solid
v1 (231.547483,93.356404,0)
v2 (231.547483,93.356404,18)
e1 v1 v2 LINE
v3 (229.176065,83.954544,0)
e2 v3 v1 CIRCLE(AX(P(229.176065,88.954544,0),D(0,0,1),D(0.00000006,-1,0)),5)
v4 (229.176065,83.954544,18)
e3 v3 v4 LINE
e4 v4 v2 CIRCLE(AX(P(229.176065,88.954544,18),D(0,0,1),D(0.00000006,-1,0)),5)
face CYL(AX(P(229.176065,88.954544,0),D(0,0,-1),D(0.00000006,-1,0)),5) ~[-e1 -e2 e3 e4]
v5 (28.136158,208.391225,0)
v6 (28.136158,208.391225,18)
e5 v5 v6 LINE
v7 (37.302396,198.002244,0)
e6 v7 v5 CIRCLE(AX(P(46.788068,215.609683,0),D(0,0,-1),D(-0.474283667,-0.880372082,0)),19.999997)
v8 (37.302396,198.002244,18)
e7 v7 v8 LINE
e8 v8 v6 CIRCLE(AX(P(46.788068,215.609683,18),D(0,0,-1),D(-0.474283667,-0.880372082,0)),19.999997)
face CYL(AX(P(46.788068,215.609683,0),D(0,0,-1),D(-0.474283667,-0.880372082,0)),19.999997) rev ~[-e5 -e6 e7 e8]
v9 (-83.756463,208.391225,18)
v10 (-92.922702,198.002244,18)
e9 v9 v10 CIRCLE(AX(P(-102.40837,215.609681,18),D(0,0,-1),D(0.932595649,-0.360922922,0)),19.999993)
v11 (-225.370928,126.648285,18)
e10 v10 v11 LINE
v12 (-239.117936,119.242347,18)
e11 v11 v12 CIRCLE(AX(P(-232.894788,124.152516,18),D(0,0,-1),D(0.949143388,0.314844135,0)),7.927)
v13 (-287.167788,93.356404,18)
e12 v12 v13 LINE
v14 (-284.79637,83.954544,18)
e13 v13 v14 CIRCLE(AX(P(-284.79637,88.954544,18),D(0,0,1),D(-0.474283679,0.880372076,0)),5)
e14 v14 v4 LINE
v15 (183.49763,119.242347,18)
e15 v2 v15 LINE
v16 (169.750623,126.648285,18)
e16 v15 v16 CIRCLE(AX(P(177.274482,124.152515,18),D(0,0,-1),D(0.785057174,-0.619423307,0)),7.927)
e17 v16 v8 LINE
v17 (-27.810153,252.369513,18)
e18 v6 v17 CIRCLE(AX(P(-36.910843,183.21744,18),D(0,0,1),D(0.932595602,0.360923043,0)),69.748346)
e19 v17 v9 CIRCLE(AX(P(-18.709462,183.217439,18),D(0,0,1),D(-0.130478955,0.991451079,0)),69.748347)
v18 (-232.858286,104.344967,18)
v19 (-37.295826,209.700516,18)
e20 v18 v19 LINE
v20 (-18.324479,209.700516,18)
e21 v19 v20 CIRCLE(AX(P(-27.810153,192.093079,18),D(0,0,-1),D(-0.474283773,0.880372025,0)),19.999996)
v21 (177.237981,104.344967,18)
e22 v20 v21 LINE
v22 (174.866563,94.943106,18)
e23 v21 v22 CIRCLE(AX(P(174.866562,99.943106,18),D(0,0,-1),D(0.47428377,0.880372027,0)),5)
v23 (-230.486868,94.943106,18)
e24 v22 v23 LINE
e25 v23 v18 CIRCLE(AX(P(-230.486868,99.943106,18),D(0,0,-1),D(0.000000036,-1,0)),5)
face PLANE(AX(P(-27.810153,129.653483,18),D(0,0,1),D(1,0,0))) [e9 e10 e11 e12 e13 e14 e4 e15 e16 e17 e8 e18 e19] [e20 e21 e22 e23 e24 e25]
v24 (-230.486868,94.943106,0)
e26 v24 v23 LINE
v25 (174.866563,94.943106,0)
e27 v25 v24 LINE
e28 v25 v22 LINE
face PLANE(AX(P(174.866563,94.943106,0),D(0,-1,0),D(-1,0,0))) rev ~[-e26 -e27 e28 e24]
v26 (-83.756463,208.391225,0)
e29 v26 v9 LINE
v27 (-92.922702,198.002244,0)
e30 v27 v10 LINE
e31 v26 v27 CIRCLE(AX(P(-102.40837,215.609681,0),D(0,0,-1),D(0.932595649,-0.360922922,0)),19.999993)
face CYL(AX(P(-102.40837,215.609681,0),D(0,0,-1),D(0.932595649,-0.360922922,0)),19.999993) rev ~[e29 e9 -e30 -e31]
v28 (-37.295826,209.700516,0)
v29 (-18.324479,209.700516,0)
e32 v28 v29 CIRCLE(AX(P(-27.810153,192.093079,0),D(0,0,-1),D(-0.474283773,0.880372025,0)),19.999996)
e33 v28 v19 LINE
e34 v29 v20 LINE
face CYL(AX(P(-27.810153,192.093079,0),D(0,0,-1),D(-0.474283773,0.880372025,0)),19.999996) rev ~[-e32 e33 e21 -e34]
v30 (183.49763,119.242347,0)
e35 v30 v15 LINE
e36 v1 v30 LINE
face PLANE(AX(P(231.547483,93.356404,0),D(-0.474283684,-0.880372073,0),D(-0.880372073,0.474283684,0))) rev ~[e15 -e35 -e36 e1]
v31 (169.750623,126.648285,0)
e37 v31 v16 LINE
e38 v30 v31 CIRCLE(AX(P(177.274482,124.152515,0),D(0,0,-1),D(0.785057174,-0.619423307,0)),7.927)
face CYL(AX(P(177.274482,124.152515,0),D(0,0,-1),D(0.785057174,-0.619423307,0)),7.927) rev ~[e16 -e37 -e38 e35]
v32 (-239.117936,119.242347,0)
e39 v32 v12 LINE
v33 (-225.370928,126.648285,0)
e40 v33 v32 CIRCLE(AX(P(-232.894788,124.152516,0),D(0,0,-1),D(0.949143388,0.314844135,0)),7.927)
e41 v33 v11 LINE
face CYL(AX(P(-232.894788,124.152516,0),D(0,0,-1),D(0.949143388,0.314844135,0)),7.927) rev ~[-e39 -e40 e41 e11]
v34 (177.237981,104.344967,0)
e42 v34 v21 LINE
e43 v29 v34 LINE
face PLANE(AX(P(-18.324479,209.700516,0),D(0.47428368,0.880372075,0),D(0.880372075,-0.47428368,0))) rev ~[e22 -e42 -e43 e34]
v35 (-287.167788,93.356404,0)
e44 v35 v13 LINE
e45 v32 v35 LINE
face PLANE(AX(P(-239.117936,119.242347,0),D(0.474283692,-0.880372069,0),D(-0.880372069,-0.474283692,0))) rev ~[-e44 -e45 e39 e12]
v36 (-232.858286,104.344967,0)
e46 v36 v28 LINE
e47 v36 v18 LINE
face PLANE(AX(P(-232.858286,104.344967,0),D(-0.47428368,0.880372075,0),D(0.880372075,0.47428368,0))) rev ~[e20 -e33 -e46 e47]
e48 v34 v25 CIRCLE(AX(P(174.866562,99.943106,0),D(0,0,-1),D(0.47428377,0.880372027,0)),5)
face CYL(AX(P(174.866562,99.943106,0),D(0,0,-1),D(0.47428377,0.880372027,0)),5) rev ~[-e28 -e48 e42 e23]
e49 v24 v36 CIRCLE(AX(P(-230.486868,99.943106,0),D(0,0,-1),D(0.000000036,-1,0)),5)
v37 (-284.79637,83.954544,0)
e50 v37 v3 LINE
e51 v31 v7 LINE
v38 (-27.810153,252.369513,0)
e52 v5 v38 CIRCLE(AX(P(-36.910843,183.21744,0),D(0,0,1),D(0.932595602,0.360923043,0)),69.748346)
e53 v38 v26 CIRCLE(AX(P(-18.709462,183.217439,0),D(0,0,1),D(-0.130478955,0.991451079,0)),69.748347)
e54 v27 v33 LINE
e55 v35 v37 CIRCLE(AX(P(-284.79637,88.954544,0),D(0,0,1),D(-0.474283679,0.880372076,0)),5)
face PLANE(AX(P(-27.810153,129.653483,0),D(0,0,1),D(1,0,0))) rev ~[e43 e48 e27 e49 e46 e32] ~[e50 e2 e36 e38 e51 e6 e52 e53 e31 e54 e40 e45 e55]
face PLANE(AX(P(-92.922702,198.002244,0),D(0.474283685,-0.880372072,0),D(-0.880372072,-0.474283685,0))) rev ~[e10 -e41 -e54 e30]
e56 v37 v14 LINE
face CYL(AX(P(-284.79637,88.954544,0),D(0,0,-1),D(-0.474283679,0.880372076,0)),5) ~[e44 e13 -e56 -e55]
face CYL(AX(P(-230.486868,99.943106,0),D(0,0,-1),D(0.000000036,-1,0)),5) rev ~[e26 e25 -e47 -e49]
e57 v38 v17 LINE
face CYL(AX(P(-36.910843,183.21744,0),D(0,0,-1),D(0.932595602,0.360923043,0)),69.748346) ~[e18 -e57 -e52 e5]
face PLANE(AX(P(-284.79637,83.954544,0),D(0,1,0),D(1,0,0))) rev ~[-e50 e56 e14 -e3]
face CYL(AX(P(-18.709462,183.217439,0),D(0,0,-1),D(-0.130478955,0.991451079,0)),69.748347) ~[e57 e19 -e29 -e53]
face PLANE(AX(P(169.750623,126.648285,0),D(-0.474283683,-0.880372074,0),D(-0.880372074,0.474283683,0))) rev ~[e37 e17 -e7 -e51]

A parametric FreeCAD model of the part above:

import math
import FreeCAD as App
import Part
import Sketcher
from FreeCAD import Vector
Q = App.Units.Quantity

doc = App.newDocument("Part")
params = doc.addObject("Spreadsheet::Sheet", "Params")
for row, (alias, value) in enumerate([
    ("sketch1_radius", "5 mm"),
    ("pad1_length", "18 mm"),
], start=1):
    params.set(f"A{row}", alias)
    params.set(f"B{row}", "=" + value)
    params.setAlias(f"B{row}", alias)

body = doc.addObject("PartDesign::Body", "Body")

sketch1 = body.newObject("Sketcher::SketchObject", "Sketch")
sketch1.AttachmentSupport = (doc.getObject("XY_Plane"), [""])
sketch1.MapMode = "FlatFace"
sketch1.addGeometry(Part.LineSegment(Vector(-239.117936, 119.242347, 0), Vector(-287.167788, 93.356404, 0)), False)
sketch1.addGeometry(Part.ArcOfCircle(Part.Circle(Vector(-284.79637, 88.954544, 0), Vector(0, 0, 1), 5), math.radians(118.312721), math.radians(269.999997)), False)
sketch1.addGeometry(Part.LineSegment(Vector(-284.79637, 83.954544, 0), Vector(229.176065, 83.954544, 0)), False)
sketch1.addGeometry(Part.ArcOfCircle(Part.Circle(Vector(229.176065, 88.954544, 0), Vector(0, 0, 1), 5), math.radians(-89.999997), math.radians(61.687279)), False)
sketch1.addGeometry(Part.LineSegment(Vector(231.547483, 93.356404, 0), Vector(183.49763, 119.242347, 0)), False)
sketch1.addGeometry(Part.ArcOfCircle(Part.Circle(Vector(177.274482, 124.152515, 0), Vector(0, 0, 1), 7.927), math.radians(161.648593), math.radians(321.725966)), False)
sketch1.addGeometry(Part.LineSegment(Vector(169.750623, 126.648285, 0), Vector(37.302396, 198.002244, 0)), False)
sketch1.addGeometry(Part.ArcOfCircle(Part.Circle(Vector(46.788068, 215.609683, 0), Vector(0, 0, 1), 19.999997), math.radians(-158.843111), math.radians(-118.31272)), False)
sketch1.addGeometry(Part.ArcOfCircle(Part.Circle(Vector(-36.910843, 183.21744, 0), Vector(0, 0, 1), 69.748346), math.radians(21.156894), math.radians(82.502731)), False)
sketch1.addGeometry(Part.ArcOfCircle(Part.Circle(Vector(-18.709462, 183.217439, 0), Vector(0, 0, 1), 69.748347), math.radians(97.49727), math.radians(158.843106)), False)
sketch1.addGeometry(Part.ArcOfCircle(Part.Circle(Vector(-102.40837, 215.609681, 0), Vector(0, 0, 1), 19.999993), math.radians(-61.687288), math.radians(-21.156887)), False)
sketch1.addGeometry(Part.LineSegment(Vector(-92.922702, 198.002244, 0), Vector(-225.370928, 126.648285, 0)), False)
sketch1.addGeometry(Part.ArcOfCircle(Part.Circle(Vector(-232.894788, 124.152516, 0), Vector(0, 0, 1), 7.927), math.radians(-141.725967), math.radians(18.351405)), False)
sketch1.addGeometry(Part.ArcOfCircle(Part.Circle(Vector(174.866562, 99.943106, 0), Vector(0, 0, 1), 5), math.radians(-89.999988), math.radians(61.687273)), False)
sketch1.addGeometry(Part.LineSegment(Vector(174.866563, 94.943106, 0), Vector(-230.486868, 94.943106, 0)), False)
sketch1.addGeometry(Part.ArcOfCircle(Part.Circle(Vector(-230.486868, 99.943106, 0), Vector(0, 0, 1), 5), math.radians(118.312712), math.radians(270.000002)), False)
sketch1.addGeometry(Part.LineSegment(Vector(-232.858286, 104.344967, 0), Vector(-37.295826, 209.700516, 0)), False)
sketch1.addGeometry(Part.ArcOfCircle(Part.Circle(Vector(-27.810153, 192.093079, 0), Vector(0, 0, 1), 19.999996), math.radians(61.687273), math.radians(118.312727)), False)
sketch1.addGeometry(Part.LineSegment(Vector(-18.324479, 209.700516, 0), Vector(177.237981, 104.344967, 0)), False)
sketch1.addConstraint(Sketcher.Constraint("Tangent", 0, 2, 1, 1))
sketch1.addConstraint(Sketcher.Constraint("Tangent", 1, 2, 2, 1))
sketch1.addConstraint(Sketcher.Constraint("Tangent", 2, 2, 3, 1))
sketch1.addConstraint(Sketcher.Constraint("Tangent", 3, 2, 4, 1))
sketch1.addConstraint(Sketcher.Constraint("Coincident", 4, 2, 5, 2))
sketch1.addConstraint(Sketcher.Constraint("Coincident", 5, 1, 6, 1))
sketch1.addConstraint(Sketcher.Constraint("Tangent", 6, 2, 7, 2))
sketch1.addConstraint(Sketcher.Constraint("Tangent", 7, 1, 8, 1))
sketch1.addConstraint(Sketcher.Constraint("Coincident", 8, 2, 9, 1))
sketch1.addConstraint(Sketcher.Constraint("Tangent", 9, 2, 10, 2))
sketch1.addConstraint(Sketcher.Constraint("Tangent", 10, 1, 11, 1))
sketch1.addConstraint(Sketcher.Constraint("Coincident", 11, 2, 12, 2))
sketch1.addConstraint(Sketcher.Constraint("Coincident", 12, 1, 0, 1))
sketch1.addConstraint(Sketcher.Constraint("Tangent", 13, 1, 14, 1))
sketch1.addConstraint(Sketcher.Constraint("Tangent", 14, 2, 15, 2))
sketch1.addConstraint(Sketcher.Constraint("Tangent", 15, 1, 16, 1))
sketch1.addConstraint(Sketcher.Constraint("Tangent", 16, 2, 17, 2))
sketch1.addConstraint(Sketcher.Constraint("Tangent", 17, 1, 18, 1))
sketch1.addConstraint(Sketcher.Constraint("Tangent", 18, 2, 13, 2))
sketch1.addConstraint(Sketcher.Constraint("Horizontal", 2))
sketch1.addConstraint(Sketcher.Constraint("Horizontal", 14))
sketch1.addConstraint(Sketcher.Constraint("Equal", 1, 3))
sketch1.addConstraint(Sketcher.Constraint("Equal", 8, 9))
sketch1.addConstraint(Sketcher.Constraint("Equal", 5, 12))
sketch1.addConstraint(Sketcher.Constraint("Equal", 3, 13))
sketch1.addConstraint(Sketcher.Constraint("Equal", 13, 15))
sketch1.addConstraint(Sketcher.Constraint("Equal", 7, 17))
sketch1.addConstraint(Sketcher.Constraint("Parallel", 4, 6))
sketch1.addConstraint(Sketcher.Constraint("Parallel", 0, 11))
sketch1.addConstraint(Sketcher.Constraint("Parallel", 11, 16))
sketch1.addConstraint(Sketcher.Constraint("Parallel", 6, 18))
sketch1.addConstraint(Sketcher.Constraint("Horizontal", 8, 3, 9, 3))
sketch1.addConstraint(Sketcher.Constraint("Horizontal", 5, 3, 12, 3))
sketch1.addConstraint(Sketcher.Constraint("Horizontal", 0, 2, 3, 2))
sketch1.addConstraint(Sketcher.Constraint("Horizontal", 7, 1, 9, 2))
sketch1.addConstraint(Sketcher.Constraint("Horizontal", 6, 2, 10, 1))
sketch1.addConstraint(Sketcher.Constraint("Horizontal", 5, 1, 11, 2))
sketch1.addConstraint(Sketcher.Constraint("Horizontal", 4, 2, 12, 1))
sketch1.addConstraint(Sketcher.Constraint("Vertical", 17, 3, 8, 2))
sketch1.addConstraint(Sketcher.Constraint("Radius", 1, Q("5 mm")))
sketch1.addConstraint(Sketcher.Constraint("Radius", 5, Q("7.927 mm")))
sketch1.addConstraint(Sketcher.Constraint("Radius", 7, Q("19.999997 mm")))
sketch1.addConstraint(Sketcher.Constraint("Radius", 8, Q("69.748346 mm")))
sketch1.addConstraint(Sketcher.Constraint("DistanceX", 1, 3, 10, 3, Q("182.388 mm")))
sketch1.addConstraint(Sketcher.Constraint("DistanceX", 0, 2, 12, 3, Q("54.273 mm")))
sketch1.addConstraint(Sketcher.Constraint("DistanceX", 8, 3, 7, 1, Q("65.047001 mm")))
sketch1.addConstraint(Sketcher.Constraint("DistanceX", 14, 2, 14, 1, Q("405.353431 mm")))
sketch1.addConstraint(Sketcher.Constraint("DistanceX", 1, 3, 15, 3, Q("54.309502 mm")))
sketch1.addConstraint(Sketcher.Constraint("DistanceY", 17, 3, 10, 3, Q("23.516602 mm")))
sketch1.addConstraint(Sketcher.Constraint("Distance", 0, Q("54.579028 mm")))
sketch1.addConstraint(Sketcher.Constraint("Distance", 6, Q("150.445739 mm")))
sketch1.addConstraint(Sketcher.Constraint("DistanceX", 1, 3, -1, 1, Q("284.79637 mm")))
sketch1.addConstraint(Sketcher.Constraint("DistanceY", -1, 1, 8, 3, Q("183.21744 mm")))
sketch1.addConstraint(Sketcher.Constraint("DistanceX", -1, 1, 4, 2, Q("183.49763 mm")))
sketch1.setExpression("Constraints[39]", "Params.sketch1_radius")
pad1 = body.newObject("PartDesign::Pad", "Pad")
pad1.Profile = sketch1
pad1.setExpression("Length", "Params.pad1_length")

doc.recompute()
